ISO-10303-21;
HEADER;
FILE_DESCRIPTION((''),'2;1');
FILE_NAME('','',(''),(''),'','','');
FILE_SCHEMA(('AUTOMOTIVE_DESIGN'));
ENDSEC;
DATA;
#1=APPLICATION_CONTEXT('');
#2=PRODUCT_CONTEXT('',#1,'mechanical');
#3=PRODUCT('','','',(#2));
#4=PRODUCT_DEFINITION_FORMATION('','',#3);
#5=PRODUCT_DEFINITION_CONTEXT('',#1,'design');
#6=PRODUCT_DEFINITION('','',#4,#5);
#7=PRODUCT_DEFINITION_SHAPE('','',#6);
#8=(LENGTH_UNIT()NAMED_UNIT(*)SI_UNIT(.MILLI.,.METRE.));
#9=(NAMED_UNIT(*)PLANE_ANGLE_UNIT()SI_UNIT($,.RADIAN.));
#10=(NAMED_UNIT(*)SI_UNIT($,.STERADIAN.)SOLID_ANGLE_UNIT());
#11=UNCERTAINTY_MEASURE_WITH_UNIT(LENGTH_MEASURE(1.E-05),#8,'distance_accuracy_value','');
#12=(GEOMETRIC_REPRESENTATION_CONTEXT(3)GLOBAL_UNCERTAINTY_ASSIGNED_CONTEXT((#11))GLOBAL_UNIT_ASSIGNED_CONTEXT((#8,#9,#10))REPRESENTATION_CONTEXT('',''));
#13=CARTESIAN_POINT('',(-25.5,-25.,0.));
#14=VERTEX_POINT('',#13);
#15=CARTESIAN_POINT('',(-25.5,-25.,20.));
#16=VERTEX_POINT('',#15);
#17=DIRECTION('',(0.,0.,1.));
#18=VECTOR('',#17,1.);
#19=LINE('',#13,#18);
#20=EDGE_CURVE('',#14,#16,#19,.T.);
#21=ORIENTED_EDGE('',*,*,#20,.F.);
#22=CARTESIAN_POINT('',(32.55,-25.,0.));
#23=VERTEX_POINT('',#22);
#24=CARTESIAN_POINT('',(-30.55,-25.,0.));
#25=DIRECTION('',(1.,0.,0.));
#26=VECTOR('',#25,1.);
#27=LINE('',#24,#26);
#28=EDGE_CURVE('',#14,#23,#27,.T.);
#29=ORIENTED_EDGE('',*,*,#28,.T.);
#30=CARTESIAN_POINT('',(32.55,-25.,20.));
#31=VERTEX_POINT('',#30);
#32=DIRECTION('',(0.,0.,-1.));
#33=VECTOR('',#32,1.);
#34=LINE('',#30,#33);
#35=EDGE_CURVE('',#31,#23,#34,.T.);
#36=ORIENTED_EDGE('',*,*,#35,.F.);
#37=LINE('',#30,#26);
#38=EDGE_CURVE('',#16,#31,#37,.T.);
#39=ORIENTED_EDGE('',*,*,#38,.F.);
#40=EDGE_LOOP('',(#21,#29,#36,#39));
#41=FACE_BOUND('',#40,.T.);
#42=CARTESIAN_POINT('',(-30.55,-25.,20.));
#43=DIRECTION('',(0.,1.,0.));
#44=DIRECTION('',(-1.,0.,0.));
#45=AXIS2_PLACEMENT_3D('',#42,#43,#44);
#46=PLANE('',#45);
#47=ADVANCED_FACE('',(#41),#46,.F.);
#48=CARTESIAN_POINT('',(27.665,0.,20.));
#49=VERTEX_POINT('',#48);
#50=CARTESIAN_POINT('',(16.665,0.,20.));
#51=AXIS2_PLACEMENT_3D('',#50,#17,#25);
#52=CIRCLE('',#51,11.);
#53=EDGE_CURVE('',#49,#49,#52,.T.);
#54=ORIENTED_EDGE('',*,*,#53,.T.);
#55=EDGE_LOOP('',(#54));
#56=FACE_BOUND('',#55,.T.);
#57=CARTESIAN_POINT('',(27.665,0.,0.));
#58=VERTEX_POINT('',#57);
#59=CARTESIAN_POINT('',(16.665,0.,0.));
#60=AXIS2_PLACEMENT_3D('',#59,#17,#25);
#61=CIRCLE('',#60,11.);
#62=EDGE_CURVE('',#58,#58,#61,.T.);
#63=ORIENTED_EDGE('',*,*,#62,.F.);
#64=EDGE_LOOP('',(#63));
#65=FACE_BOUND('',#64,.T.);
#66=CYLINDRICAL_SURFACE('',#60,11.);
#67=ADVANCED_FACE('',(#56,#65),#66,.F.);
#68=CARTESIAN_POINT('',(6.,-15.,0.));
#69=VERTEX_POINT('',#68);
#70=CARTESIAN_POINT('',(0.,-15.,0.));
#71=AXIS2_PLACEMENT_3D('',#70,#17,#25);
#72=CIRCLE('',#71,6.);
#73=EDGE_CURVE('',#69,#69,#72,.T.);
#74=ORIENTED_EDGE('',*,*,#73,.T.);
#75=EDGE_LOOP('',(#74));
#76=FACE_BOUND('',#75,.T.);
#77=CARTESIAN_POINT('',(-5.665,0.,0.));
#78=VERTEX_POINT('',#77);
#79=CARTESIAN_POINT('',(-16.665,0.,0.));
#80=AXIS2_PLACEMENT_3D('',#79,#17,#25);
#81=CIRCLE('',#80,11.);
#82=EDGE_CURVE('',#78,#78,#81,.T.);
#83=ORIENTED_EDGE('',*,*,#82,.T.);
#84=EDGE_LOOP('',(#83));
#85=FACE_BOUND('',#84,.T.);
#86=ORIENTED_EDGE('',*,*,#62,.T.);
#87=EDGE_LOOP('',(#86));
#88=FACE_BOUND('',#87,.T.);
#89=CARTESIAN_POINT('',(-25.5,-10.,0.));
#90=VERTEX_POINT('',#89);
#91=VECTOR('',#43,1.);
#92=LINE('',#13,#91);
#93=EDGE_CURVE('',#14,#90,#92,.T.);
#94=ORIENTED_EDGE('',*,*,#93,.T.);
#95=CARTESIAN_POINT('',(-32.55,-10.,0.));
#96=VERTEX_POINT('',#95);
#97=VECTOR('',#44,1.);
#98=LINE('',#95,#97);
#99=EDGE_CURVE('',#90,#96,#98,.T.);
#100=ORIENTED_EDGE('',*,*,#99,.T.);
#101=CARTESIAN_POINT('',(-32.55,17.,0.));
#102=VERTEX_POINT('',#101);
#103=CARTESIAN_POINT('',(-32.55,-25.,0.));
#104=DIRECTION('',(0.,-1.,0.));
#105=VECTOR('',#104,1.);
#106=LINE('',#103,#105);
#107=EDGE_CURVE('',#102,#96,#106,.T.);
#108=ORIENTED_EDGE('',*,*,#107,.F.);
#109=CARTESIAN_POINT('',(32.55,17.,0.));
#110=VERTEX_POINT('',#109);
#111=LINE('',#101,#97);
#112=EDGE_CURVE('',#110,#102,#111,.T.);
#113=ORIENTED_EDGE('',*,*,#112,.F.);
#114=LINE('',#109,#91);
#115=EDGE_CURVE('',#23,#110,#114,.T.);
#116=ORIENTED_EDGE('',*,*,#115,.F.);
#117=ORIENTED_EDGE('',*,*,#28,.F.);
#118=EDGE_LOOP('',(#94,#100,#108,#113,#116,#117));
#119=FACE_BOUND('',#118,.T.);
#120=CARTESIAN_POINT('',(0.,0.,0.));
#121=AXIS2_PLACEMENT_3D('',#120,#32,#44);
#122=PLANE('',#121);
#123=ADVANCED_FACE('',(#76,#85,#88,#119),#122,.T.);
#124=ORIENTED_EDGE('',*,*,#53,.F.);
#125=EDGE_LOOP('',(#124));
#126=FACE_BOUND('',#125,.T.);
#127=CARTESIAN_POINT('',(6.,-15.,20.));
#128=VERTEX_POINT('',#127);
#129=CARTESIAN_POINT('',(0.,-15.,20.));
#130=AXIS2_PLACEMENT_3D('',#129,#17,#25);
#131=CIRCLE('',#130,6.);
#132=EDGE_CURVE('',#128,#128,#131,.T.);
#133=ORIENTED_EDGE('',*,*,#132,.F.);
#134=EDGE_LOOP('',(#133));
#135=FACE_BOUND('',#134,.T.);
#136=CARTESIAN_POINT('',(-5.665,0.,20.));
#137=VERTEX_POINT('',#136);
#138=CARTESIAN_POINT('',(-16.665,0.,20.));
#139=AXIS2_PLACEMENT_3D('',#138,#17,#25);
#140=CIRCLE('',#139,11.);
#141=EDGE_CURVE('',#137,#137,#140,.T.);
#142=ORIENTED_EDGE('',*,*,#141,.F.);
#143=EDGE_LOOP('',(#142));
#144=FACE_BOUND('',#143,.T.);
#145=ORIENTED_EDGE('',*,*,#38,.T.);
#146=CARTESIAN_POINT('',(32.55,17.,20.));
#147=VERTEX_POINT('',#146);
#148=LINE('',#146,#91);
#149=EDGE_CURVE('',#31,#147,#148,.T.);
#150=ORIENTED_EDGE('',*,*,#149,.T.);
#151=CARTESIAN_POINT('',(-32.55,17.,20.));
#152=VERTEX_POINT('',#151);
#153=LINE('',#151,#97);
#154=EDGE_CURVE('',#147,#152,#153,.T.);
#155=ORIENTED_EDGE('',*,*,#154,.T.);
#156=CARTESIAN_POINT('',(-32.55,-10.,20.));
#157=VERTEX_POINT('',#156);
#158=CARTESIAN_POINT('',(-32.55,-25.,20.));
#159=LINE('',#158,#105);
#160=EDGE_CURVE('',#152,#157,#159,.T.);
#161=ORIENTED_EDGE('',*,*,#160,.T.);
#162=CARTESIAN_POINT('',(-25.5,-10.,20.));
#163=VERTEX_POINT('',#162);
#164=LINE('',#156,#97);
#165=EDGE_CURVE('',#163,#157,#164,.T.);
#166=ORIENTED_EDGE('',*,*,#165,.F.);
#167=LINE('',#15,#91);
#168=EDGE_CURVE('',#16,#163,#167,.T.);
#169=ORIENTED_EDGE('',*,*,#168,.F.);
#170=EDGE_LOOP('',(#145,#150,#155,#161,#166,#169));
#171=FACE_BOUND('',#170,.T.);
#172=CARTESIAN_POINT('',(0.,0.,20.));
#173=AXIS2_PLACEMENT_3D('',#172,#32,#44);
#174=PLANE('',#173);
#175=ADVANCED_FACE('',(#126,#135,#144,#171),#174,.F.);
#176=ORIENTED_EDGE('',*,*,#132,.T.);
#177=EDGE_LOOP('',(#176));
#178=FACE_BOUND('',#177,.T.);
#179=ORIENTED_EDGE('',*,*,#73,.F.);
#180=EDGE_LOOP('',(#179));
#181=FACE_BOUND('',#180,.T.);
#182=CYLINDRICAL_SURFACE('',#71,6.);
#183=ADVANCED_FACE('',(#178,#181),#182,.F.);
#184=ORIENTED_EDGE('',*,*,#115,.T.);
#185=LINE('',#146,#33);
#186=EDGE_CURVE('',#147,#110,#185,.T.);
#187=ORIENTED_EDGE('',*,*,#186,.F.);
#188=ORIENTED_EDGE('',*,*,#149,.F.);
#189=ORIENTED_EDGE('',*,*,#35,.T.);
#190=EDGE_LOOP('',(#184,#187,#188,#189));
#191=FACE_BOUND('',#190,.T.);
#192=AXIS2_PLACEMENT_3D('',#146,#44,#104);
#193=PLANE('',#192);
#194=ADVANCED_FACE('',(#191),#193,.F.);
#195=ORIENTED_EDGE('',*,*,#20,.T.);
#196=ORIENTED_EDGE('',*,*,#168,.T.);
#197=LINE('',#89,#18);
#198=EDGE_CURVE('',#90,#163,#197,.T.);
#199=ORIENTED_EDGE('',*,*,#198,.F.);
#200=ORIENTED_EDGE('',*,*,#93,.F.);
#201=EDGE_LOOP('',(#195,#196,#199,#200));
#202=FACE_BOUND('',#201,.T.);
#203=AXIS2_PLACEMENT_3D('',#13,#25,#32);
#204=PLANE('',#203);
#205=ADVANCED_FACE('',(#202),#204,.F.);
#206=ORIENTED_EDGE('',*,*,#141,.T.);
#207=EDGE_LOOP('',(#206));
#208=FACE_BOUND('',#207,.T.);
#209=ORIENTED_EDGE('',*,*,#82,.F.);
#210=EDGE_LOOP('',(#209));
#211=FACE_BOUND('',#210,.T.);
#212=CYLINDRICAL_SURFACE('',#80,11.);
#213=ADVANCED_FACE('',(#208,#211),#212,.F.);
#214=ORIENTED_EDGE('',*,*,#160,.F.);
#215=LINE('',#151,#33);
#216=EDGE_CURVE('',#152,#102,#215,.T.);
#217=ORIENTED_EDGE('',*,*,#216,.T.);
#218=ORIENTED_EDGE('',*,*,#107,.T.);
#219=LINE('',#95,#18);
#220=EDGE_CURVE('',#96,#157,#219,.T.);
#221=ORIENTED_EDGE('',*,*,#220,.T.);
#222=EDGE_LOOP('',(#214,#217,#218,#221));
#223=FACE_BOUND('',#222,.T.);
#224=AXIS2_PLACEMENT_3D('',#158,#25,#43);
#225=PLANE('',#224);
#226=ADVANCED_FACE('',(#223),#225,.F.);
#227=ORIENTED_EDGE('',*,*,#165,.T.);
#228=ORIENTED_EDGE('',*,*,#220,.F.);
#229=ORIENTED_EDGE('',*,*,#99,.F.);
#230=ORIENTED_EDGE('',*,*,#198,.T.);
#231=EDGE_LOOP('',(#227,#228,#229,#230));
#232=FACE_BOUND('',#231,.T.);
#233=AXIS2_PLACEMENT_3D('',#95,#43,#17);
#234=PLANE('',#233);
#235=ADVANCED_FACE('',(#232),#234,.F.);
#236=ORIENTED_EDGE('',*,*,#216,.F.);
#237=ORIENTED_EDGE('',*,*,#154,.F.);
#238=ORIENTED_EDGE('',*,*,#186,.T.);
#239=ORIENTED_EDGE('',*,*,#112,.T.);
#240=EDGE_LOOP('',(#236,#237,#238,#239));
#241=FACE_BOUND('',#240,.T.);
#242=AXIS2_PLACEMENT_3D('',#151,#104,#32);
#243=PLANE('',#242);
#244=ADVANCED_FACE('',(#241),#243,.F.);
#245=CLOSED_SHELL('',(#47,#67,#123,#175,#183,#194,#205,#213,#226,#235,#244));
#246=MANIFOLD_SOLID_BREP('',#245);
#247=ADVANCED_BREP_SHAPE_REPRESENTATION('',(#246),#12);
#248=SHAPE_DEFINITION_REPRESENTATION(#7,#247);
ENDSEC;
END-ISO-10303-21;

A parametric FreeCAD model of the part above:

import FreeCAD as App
import Part
import Sketcher


def add_polygon(sketch, points):
    """Adds a closed chain of lines whose ends are joined by coincident constraints."""
    first, n = sketch.GeometryCount, len(points)
    for a, b in zip(points, points[1:] + points[:1]):
        sketch.addGeometry(Part.LineSegment(App.Vector(*a, 0), App.Vector(*b, 0)), False)
    for i in range(n):
        sketch.addConstraint(Sketcher.Constraint("Coincident", first + i, 2, first + (i + 1) % n, 1))

doc = App.newDocument("Part")
body = doc.addObject("PartDesign::Body", "Body")

# Sketch on XY plane
sketch1 = doc.addObject("Sketcher::SketchObject", "Sketch")
body.addObject(sketch1)
sketch1.AttachmentSupport = (doc.XY_Plane, [""])
sketch1.MapMode = "FlatFace"
add_polygon(sketch1, [(33, -25), (33, 17), (-33, 17), (-33, -25)])  # lines 0-3
sketch1.addConstraint([
    Sketcher.Constraint("Vertical", 0),
    Sketcher.Constraint("Horizontal", 1),
    Sketcher.Constraint("Vertical", 2),
    Sketcher.Constraint("Horizontal", 3),
    Sketcher.Constraint("DistanceY", 0, 1, 0, 2, 42.0),
    Sketcher.Constraint("DistanceX", 1, 2, 1, 1, 65.1),
    Sketcher.Constraint("DistanceY", -1, 1, 0, 2, 17.0),
    Sketcher.Constraint("DistanceX", -1, 1, 0, 2, 32.55),
])
pad1 = doc.addObject("PartDesign::Pad", "Pad")
body.addObject(pad1)
pad1.Profile = sketch1
pad1.Length = 20

# Sketch on XY plane
sketch2 = doc.addObject("Sketcher::SketchObject", "Sketch001")
body.addObject(sketch2)
sketch2.AttachmentSupport = (doc.XY_Plane, [""])
sketch2.MapMode = "FlatFace"
sketch2.AttachmentOffset = App.Placement(App.Vector(0, 0, 20), App.Rotation())
sketch2.addGeometry([
    Part.Circle(App.Vector(-17, 0, 0), App.Vector(0, 0, 1), 11),
    Part.Circle(App.Vector(17, 0, 0), App.Vector(0, 0, 1), 11),
    Part.Circle(App.Vector(0, -15, 0), App.Vector(0, 0, 1), 6),
], False)
sketch2.addConstraint([
    Sketcher.Constraint("Equal", 0, 1),
    Sketcher.Constraint("Symmetric", 0, 3, 1, 3, -1, 1),
    Sketcher.Constraint("PointOnObject", 0, 3, -1),
    Sketcher.Constraint("PointOnObject", 2, 3, -2),
    Sketcher.Constraint("Diameter", 0, 22.0),
    Sketcher.Constraint("Diameter", 2, 12.0),
    Sketcher.Constraint("DistanceY", 2, 3, -1, 1, 15.0),
    Sketcher.Constraint("DistanceX", 0, 3, 1, 3, 33.33),
])
pocket1 = doc.addObject("PartDesign::Pocket", "Pocket")
body.addObject(pocket1)
pocket1.Profile = sketch2
pocket1.Type = "ThroughAll"

# Sketch on XY plane
sketch3 = doc.addObject("Sketcher::SketchObject", "Sketch002")
body.addObject(sketch3)
sketch3.AttachmentSupport = (doc.XY_Plane, [""])
sketch3.MapMode = "FlatFace"
sketch3.AttachmentOffset = App.Placement(App.Vector(0, 0, 20), App.Rotation())
add_polygon(sketch3, [(-33, -10), (-33, -25), (-26, -25), (-26, -10)])  # lines 0-3
sketch3.addConstraint([
    Sketcher.Constraint("Vertical", 0),
    Sketcher.Constraint("Horizontal", 1),
    Sketcher.Constraint("Vertical", 2),
    Sketcher.Constraint("Horizontal", 3),
    Sketcher.Constraint("DistanceY", 0, 2, 0, 1, 15.0),
    Sketcher.Constraint("DistanceY", 0, 2, -1, 1, 25.0),
    Sketcher.Constraint("DistanceX", 1, 1, 1, 2, 7.05),
    Sketcher.Constraint("DistanceX", 1, 2, -1, 1, 25.5),
])
pocket2 = doc.addObject("PartDesign::Pocket", "Pocket001")
body.addObject(pocket2)
pocket2.Profile = sketch3
pocket2.Type = "ThroughAll"

doc.recompute()
